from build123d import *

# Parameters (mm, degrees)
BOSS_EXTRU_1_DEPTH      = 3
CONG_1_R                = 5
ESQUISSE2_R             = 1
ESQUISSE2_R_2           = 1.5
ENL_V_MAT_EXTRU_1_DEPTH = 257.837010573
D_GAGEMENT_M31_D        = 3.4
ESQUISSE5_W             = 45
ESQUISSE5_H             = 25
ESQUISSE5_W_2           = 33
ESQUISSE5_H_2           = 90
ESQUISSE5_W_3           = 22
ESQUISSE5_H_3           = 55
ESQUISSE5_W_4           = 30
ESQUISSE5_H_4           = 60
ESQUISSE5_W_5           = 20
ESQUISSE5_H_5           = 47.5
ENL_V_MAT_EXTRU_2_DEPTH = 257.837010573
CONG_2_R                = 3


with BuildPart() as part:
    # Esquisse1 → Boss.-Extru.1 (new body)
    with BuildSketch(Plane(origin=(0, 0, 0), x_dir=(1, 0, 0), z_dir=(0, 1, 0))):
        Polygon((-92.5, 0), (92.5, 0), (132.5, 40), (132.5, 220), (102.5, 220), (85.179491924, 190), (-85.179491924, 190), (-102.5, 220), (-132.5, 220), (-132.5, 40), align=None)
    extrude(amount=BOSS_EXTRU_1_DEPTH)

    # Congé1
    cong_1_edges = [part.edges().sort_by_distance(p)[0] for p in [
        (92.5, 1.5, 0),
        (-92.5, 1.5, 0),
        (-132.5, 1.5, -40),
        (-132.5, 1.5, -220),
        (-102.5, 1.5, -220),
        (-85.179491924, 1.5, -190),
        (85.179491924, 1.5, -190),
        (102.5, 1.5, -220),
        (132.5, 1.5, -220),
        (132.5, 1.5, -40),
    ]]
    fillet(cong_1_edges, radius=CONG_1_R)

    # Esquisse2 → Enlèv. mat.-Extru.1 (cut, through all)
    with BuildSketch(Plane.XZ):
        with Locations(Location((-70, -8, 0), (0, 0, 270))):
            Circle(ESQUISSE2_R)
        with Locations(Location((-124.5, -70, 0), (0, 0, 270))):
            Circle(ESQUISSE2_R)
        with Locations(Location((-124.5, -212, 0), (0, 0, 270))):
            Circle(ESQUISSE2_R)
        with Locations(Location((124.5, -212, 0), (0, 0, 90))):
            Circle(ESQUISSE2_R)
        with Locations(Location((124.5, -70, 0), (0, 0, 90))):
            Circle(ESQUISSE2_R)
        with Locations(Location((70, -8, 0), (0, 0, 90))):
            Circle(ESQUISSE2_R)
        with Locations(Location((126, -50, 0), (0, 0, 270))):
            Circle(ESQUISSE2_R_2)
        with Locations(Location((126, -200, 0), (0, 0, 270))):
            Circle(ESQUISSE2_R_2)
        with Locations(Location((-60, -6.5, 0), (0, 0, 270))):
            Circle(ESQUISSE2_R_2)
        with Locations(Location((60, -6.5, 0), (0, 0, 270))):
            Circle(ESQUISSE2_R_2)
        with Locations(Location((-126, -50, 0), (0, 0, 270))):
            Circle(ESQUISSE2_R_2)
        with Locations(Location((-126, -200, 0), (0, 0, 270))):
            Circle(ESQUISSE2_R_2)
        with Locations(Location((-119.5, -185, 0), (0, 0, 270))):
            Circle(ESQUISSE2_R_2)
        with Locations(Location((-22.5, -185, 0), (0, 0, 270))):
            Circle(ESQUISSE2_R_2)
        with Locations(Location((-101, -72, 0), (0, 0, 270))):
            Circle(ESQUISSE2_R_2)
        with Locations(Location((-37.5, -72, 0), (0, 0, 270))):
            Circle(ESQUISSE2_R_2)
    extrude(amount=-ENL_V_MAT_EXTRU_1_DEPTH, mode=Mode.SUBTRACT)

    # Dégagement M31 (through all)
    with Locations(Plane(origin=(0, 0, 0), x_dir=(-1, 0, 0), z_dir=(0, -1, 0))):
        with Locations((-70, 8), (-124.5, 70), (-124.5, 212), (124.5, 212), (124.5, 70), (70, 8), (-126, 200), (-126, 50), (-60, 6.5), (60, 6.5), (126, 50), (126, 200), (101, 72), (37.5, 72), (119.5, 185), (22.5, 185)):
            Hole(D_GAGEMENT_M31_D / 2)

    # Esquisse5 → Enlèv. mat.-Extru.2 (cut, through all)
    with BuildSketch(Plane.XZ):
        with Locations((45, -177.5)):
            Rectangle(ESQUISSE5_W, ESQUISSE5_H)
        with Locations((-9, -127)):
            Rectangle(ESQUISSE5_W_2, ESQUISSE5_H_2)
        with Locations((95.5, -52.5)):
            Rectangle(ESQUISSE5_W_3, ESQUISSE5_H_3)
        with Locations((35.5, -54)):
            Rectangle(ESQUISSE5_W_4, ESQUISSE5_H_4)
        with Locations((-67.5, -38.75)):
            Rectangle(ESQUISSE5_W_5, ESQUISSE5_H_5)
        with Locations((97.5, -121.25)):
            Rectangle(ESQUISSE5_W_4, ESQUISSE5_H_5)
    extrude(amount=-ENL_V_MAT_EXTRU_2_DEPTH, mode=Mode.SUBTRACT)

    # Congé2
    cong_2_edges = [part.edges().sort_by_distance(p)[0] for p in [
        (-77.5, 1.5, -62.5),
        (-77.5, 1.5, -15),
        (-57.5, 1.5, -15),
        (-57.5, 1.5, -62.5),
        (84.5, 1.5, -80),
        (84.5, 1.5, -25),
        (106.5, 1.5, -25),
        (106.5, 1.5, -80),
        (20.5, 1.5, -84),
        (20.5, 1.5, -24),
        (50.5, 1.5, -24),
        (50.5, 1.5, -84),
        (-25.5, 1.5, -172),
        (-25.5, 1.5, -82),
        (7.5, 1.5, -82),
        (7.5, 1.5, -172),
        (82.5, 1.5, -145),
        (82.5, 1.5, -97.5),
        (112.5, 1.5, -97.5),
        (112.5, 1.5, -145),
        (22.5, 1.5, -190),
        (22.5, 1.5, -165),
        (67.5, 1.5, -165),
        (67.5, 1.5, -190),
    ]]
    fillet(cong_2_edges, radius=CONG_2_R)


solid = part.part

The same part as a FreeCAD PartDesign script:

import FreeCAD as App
import Part
import Sketcher

V = App.Vector
Q = App.Units.Quantity


def edges_at(feature, points):
    """Names of the edges that pass closest to the given points."""
    edges = feature.Shape.Edges
    near = lambda p: min(range(len(edges)), key=lambda i: edges[i].distToShape(Part.Vertex(*p))[0])
    return sorted({f"Edge{near(p) + 1}" for p in points})


def add_polygon(sketch, points):
    """Adds a closed chain of lines whose ends are joined by coincident constraints."""
    first, n = sketch.GeometryCount, len(points)
    for a, b in zip(points, points[1:] + points[:1]):
        sketch.addGeometry(Part.LineSegment(App.Vector(*a, 0), App.Vector(*b, 0)), False)
    for i in range(n):
        sketch.addConstraint(Sketcher.Constraint("Coincident", first + i, 2, first + (i + 1) % n, 1))

doc = App.newDocument("Part")
body = doc.addObject("PartDesign::Body", "Body")

sketch1 = body.newObject("Sketcher::SketchObject", "Sketch")
sketch1.AttachmentSupport = (doc.getObject("XZ_Plane"), [""])
sketch1.MapMode = "FlatFace"
add_polygon(sketch1, [(-92.5, 0), (92.5, 0), (132.5, -40), (132.5, -220), (102.5, -220), (85.179492, -190), (-85.179492, -190), (-102.5, -220), (-132.5, -220), (-132.5, -40)])
sketch1.addConstraint([
    Sketcher.Constraint("Horizontal", 0),
    Sketcher.Constraint("Vertical", 2),
    Sketcher.Constraint("Horizontal", 3),
    Sketcher.Constraint("Horizontal", 5),
    Sketcher.Constraint("Horizontal", 7),
    Sketcher.Constraint("Vertical", 8),
    Sketcher.Constraint("Symmetric", 0, 2, 9, 2, -1, 1),
    Sketcher.Constraint("Symmetric", 3, 2, 6, 2, -2),
    Sketcher.Constraint("Symmetric", 1, 2, 8, 2, -2),
    Sketcher.Constraint("Perpendicular", 1, 9),
    Sketcher.Constraint("Equal", 4, 6),
    Sketcher.Constraint("DistanceX", 0, 1, 0, 2, 185.0),
    Sketcher.Constraint("DistanceX", 3, 2, 3, 1, 30.0),
    Sketcher.Constraint("DistanceY", 2, 2, 2, 1, 180.0),
    Sketcher.Constraint("Angle", 4, Q("120 deg")),
    Sketcher.Constraint("DistanceY", 1, 2, -1, 1, 40.0),
    Sketcher.Constraint("DistanceY", 4, 2, -1, 1, 190.0),
])
pad1 = body.newObject("PartDesign::Pad", "Pad")
pad1.Profile = sketch1
pad1.Length = 3
pad1.Reversed = True
doc.recompute()

fillet = body.newObject("PartDesign::Fillet", "Fillet")
fillet.Base = (pad1, edges_at(pad1, [
    (92.5, 1.5, 0),
    (-92.5, 1.5, 0),
    (-132.5, 1.5, -40),
    (-132.5, 1.5, -220),
    (-102.5, 1.5, -220),
    (-85.179, 1.5, -190),
    (85.179, 1.5, -190),
    (102.5, 1.5, -220),
    (132.5, 1.5, -220),
    (132.5, 1.5, -40),
]))
fillet.Radius = 5

sketch2 = body.newObject("Sketcher::SketchObject", "Sketch001")
sketch2.AttachmentSupport = (doc.getObject("XZ_Plane"), [""])
sketch2.MapMode = "FlatFace"
sketch2.addGeometry([
    Part.Circle(V(-70, -8, 0), V(0, 0, 1), 1),
    Part.Circle(V(-124.5, -70, 0), V(0, 0, 1), 1),
    Part.Circle(V(-124.5, -212, 0), V(0, 0, 1), 1),
    Part.Circle(V(124.5, -212, 0), V(0, 0, 1), 1),
    Part.Circle(V(124.5, -70, 0), V(0, 0, 1), 1),
    Part.Circle(V(70, -8, 0), V(0, 0, 1), 1),
    Part.Circle(V(126, -50, 0), V(0, 0, 1), 1.5),
    Part.Circle(V(126, -200, 0), V(0, 0, 1), 1.5),
    Part.Circle(V(-60, -6.5, 0), V(0, 0, 1), 1.5),
    Part.Circle(V(60, -6.5, 0), V(0, 0, 1), 1.5),
    Part.Circle(V(-126, -50, 0), V(0, 0, 1), 1.5),
    Part.Circle(V(-126, -200, 0), V(0, 0, 1), 1.5),
    Part.Circle(V(-119.5, -185, 0), V(0, 0, 1), 1.5),
    Part.Circle(V(-22.5, -185, 0), V(0, 0, 1), 1.5),
    Part.Circle(V(-101, -72, 0), V(0, 0, 1), 1.5),
    Part.Circle(V(-37.5, -72, 0), V(0, 0, 1), 1.5),
], False)
sketch2.addConstraint([
    Sketcher.Constraint("Equal", 0, 1),
    Sketcher.Constraint("Equal", 1, 2),
    Sketcher.Constraint("Equal", 2, 3),
    Sketcher.Constraint("Equal", 3, 4),
    Sketcher.Constraint("Equal", 4, 5),
    Sketcher.Constraint("Equal", 6, 7),
    Sketcher.Constraint("Equal", 7, 8),
    Sketcher.Constraint("Equal", 8, 9),
    Sketcher.Constraint("Equal", 9, 10),
    Sketcher.Constraint("Equal", 10, 11),
    Sketcher.Constraint("Equal", 11, 12),
    Sketcher.Constraint("Equal", 12, 13),
    Sketcher.Constraint("Equal", 13, 14),
    Sketcher.Constraint("Equal", 14, 15),
    Sketcher.Constraint("Symmetric", 2, 3, 3, 3, -2),
    Sketcher.Constraint("Symmetric", 1, 3, 4, 3, -2),
    Sketcher.Constraint("Symmetric", 0, 3, 5, 3, -2),
    Sketcher.Constraint("Symmetric", 8, 3, 9, 3, -2),
    Sketcher.Constraint("Symmetric", 6, 3, 10, 3, -2),
    Sketcher.Constraint("Symmetric", 7, 3, 11, 3, -2),
    Sketcher.Constraint("Horizontal", 12, 3, 13, 3),
    Sketcher.Constraint("Horizontal", 14, 3, 15, 3),
    Sketcher.Constraint("Vertical", 1, 3, 2, 3),
    Sketcher.Constraint("Vertical", 6, 3, 7, 3),
    Sketcher.Constraint("Diameter", 0, 2.0),
    Sketcher.Constraint("Diameter", 6, 3.0),
    Sketcher.Constraint("DistanceX", 0, 3, -1, 1, 70.0),
    Sketcher.Constraint("DistanceY", 0, 3, -1, 1, 8.0),
    Sketcher.Constraint("DistanceY", 1, 3, -1, 1, 70.0),
    Sketcher.Constraint("DistanceY", 2, 3, -1, 1, 212.0),
    Sketcher.Constraint("DistanceX", -1, 1, 6, 3, 126.0),
    Sketcher.Constraint("DistanceY", 6, 3, -1, 1, 50.0),
    Sketcher.Constraint("DistanceY", 7, 3, -1, 1, 200.0),
    Sketcher.Constraint("DistanceX", 8, 3, -1, 1, 60.0),
    Sketcher.Constraint("DistanceY", 12, 3, -1, 1, 185.0),
    Sketcher.Constraint("DistanceX", 14, 3, -1, 1, 101.0),
    Sketcher.Constraint("DistanceY", 14, 3, -1, 1, 72.0),
    Sketcher.Constraint("DistanceX", 2, 3, 3, 3, 249.0),
    Sketcher.Constraint("DistanceX", 2, 3, 12, 3, 5.0),
    Sketcher.Constraint("DistanceX", 12, 3, 13, 3, 97.0),
    Sketcher.Constraint("DistanceX", 1, 3, 15, 3, 87.0),
    Sketcher.Constraint("DistanceY", 8, 3, -1, 1, 6.5),
])
pocket1 = body.newObject("PartDesign::Pocket", "Pocket")
pocket1.Profile = sketch2
pocket1.Type = "ThroughAll"

sketch3 = body.newObject("Sketcher::SketchObject", "Sketch002")
sketch3.AttachmentSupport = (doc.getObject("XZ_Plane"), [""])
sketch3.MapMode = "FlatFace"
sketch3.addGeometry([
    Part.Circle(V(70, -8, 0), V(0, 0, 1), 1.7),
    Part.Circle(V(124.5, -70, 0), V(0, 0, 1), 1.7),
    Part.Circle(V(124.5, -212, 0), V(0, 0, 1), 1.7),
    Part.Circle(V(-124.5, -212, 0), V(0, 0, 1), 1.7),
    Part.Circle(V(-124.5, -70, 0), V(0, 0, 1), 1.7),
    Part.Circle(V(-70, -8, 0), V(0, 0, 1), 1.7),
    Part.Circle(V(126, -200, 0), V(0, 0, 1), 1.7),
    Part.Circle(V(126, -50, 0), V(0, 0, 1), 1.7),
    Part.Circle(V(60, -6.5, 0), V(0, 0, 1), 1.7),
    Part.Circle(V(-60, -6.5, 0), V(0, 0, 1), 1.7),
    Part.Circle(V(-126, -50, 0), V(0, 0, 1), 1.7),
    Part.Circle(V(-126, -200, 0), V(0, 0, 1), 1.7),
    Part.Circle(V(-101, -72, 0), V(0, 0, 1), 1.7),
    Part.Circle(V(-37.5, -72, 0), V(0, 0, 1), 1.7),
    Part.Circle(V(-119.5, -185, 0), V(0, 0, 1), 1.7),
    Part.Circle(V(-22.5, -185, 0), V(0, 0, 1), 1.7),
], False)
sketch3.addConstraint([
    Sketcher.Constraint("Equal", 0, 1),
    Sketcher.Constraint("Equal", 1, 2),
    Sketcher.Constraint("Equal", 2, 3),
    Sketcher.Constraint("Equal", 3, 4),
    Sketcher.Constraint("Equal", 4, 5),
    Sketcher.Constraint("Equal", 5, 6),
    Sketcher.Constraint("Equal", 6, 7),
    Sketcher.Constraint("Equal", 7, 8),
    Sketcher.Constraint("Equal", 8, 9),
    Sketcher.Constraint("Equal", 9, 10),
    Sketcher.Constraint("Equal", 10, 11),
    Sketcher.Constraint("Equal", 11, 12),
    Sketcher.Constraint("Equal", 12, 13),
    Sketcher.Constraint("Equal", 13, 14),
    Sketcher.Constraint("Equal", 14, 15),
    Sketcher.Constraint("Symmetric", 2, 3, 3, 3, -2),
    Sketcher.Constraint("Symmetric", 1, 3, 4, 3, -2),
    Sketcher.Constraint("Symmetric", 0, 3, 5, 3, -2),
    Sketcher.Constraint("Symmetric", 8, 3, 9, 3, -2),
    Sketcher.Constraint("Symmetric", 7, 3, 10, 3, -2),
    Sketcher.Constraint("Symmetric", 6, 3, 11, 3, -2),
    Sketcher.Constraint("Horizontal", 12, 3, 13, 3),
    Sketcher.Constraint("Horizontal", 14, 3, 15, 3),
    Sketcher.Constraint("Vertical", 1, 3, 2, 3),
    Sketcher.Constraint("Vertical", 6, 3, 7, 3),
    Sketcher.Constraint("Diameter", 0, 3.4),
    Sketcher.Constraint("DistanceX", -1, 1, 0, 3, 70.0),
    Sketcher.Constraint("DistanceY", 0, 3, -1, 1, 8.0),
    Sketcher.Constraint("DistanceY", 1, 3, -1, 1, 70.0),
    Sketcher.Constraint("DistanceY", 2, 3, -1, 1, 212.0),
    Sketcher.Constraint("DistanceX", -1, 1, 6, 3, 126.0),
    Sketcher.Constraint("DistanceY", 6, 3, -1, 1, 200.0),
    Sketcher.Constraint("DistanceY", 7, 3, -1, 1, 50.0),
    Sketcher.Constraint("DistanceX", -1, 1, 8, 3, 60.0),
    Sketcher.Constraint("DistanceX", 12, 3, -1, 1, 101.0),
    Sketcher.Constraint("DistanceY", 12, 3, -1, 1, 72.0),
    Sketcher.Constraint("DistanceY", 14, 3, -1, 1, 185.0),
    Sketcher.Constraint("DistanceX", 3, 3, 2, 3, 249.0),
    Sketcher.Constraint("DistanceX", 4, 3, 13, 3, 87.0),
    Sketcher.Constraint("DistanceX", 3, 3, 14, 3, 5.0),
    Sketcher.Constraint("DistanceX", 14, 3, 15, 3, 97.0),
    Sketcher.Constraint("DistanceY", 8, 3, -1, 1, 6.5),
])
doc.recompute()
hole = body.newObject("PartDesign::Hole", "Hole")
hole.Profile = sketch3
hole.ThreadType = "None"
hole.Diameter = 3.4
hole.DepthType = "ThroughAll"

sketch4 = body.newObject("Sketcher::SketchObject", "Sketch003")
sketch4.AttachmentSupport = (doc.getObject("XZ_Plane"), [""])
sketch4.MapMode = "FlatFace"
add_polygon(sketch4, [(22.5, -165), (22.5, -190), (67.5, -190), (67.5, -165)])
add_polygon(sketch4, [(-25.5, -82), (-25.5, -172), (7.5, -172), (7.5, -82)])
add_polygon(sketch4, [(84.5, -25), (84.5, -80), (106.5, -80), (106.5, -25)])
add_polygon(sketch4, [(20.5, -24), (20.5, -84), (50.5, -84), (50.5, -24)])
add_polygon(sketch4, [(-77.5, -15), (-77.5, -62.5), (-57.5, -62.5), (-57.5, -15)])
add_polygon(sketch4, [(82.5, -97.5), (82.5, -145), (112.5, -145), (112.5, -97.5)])
sketch4.addConstraint([
    Sketcher.Constraint("Vertical", 0),
    Sketcher.Constraint("Horizontal", 1),
    Sketcher.Constraint("Vertical", 2),
    Sketcher.Constraint("Horizontal", 3),
    Sketcher.Constraint("Vertical", 4),
    Sketcher.Constraint("Horizontal", 5),
    Sketcher.Constraint("Vertical", 6),
    Sketcher.Constraint("Horizontal", 7),
    Sketcher.Constraint("Vertical", 8),
    Sketcher.Constraint("Horizontal", 9),
    Sketcher.Constraint("Vertical", 10),
    Sketcher.Constraint("Horizontal", 11),
    Sketcher.Constraint("Vertical", 12),
    Sketcher.Constraint("Horizontal", 13),
    Sketcher.Constraint("Vertical", 14),
    Sketcher.Constraint("Horizontal", 15),
    Sketcher.Constraint("Vertical", 16),
    Sketcher.Constraint("Horizontal", 17),
    Sketcher.Constraint("Vertical", 18),
    Sketcher.Constraint("Horizontal", 19),
    Sketcher.Constraint("Vertical", 20),
    Sketcher.Constraint("Horizontal", 21),
    Sketcher.Constraint("Vertical", 22),
    Sketcher.Constraint("Horizontal", 23),
    Sketcher.Constraint("Equal", 15, 21),
    Sketcher.Constraint("Equal", 18, 20),
    Sketcher.Constraint("DistanceX", 1, 1, 1, 2, 45.0),
    Sketcher.Constraint("DistanceX", 5, 1, 5, 2, 33.0),
    Sketcher.Constraint("DistanceX", 9, 1, 9, 2, 22.0),
    Sketcher.Constraint("DistanceX", 13, 1, 13, 2, 30.0),
    Sketcher.Constraint("DistanceX", 17, 1, 17, 2, 20.0),
    Sketcher.Constraint("DistanceY", 0, 2, 0, 1, 25.0),
    Sketcher.Constraint("DistanceY", 4, 2, 4, 1, 90.0),
    Sketcher.Constraint("DistanceY", 8, 2, 8, 1, 55.0),
    Sketcher.Constraint("DistanceY", 12, 2, 12, 1, 60.0),
    Sketcher.Constraint("DistanceY", 16, 2, 16, 1, 47.5),
    Sketcher.Constraint("DistanceY", 0, 2, -1, 1, 190.0),
    Sketcher.Constraint("DistanceY", 4, 2, -1, 1, 172.0),
    Sketcher.Constraint("DistanceY", 8, 2, -1, 1, 80.0),
    Sketcher.Constraint("DistanceY", 12, 2, -1, 1, 84.0),
    Sketcher.Constraint("DistanceY", 18, 2, -1, 1, 15.0),
    Sketcher.Constraint("DistanceY", 20, 2, -1, 1, 145.0),
    Sketcher.Constraint("DistanceX", 4, 2, 3, 2, 48.0),
    Sketcher.Constraint("DistanceX", 6, 2, 8, 2, 77.0),
    Sketcher.Constraint("DistanceX", 6, 2, 12, 2, 13.0),
    Sketcher.Constraint("DistanceX", 16, 2, 7, 2, 52.0),
    Sketcher.Constraint("DistanceX", 2, 2, 20, 2, 15.0),
    Sketcher.Constraint("DistanceX", -1, 1, 0, 2, 22.5),
])
pocket2 = body.newObject("PartDesign::Pocket", "Pocket001")
pocket2.Profile = sketch4
pocket2.Type = "ThroughAll"
doc.recompute()

fillet2 = body.newObject("PartDesign::Fillet", "Fillet001")
fillet2.Base = (pocket2, edges_at(pocket2, [
    (-77.5, 1.5, -62.5),
    (-77.5, 1.5, -15),
    (-57.5, 1.5, -15),
    (-57.5, 1.5, -62.5),
    (84.5, 1.5, -80),
    (84.5, 1.5, -25),
    (106.5, 1.5, -25),
    (106.5, 1.5, -80),
    (20.5, 1.5, -84),
    (20.5, 1.5, -24),
    (50.5, 1.5, -24),
    (50.5, 1.5, -84),
    (-25.5, 1.5, -172),
    (-25.5, 1.5, -82),
    (7.5, 1.5, -82),
    (7.5, 1.5, -172),
    (82.5, 1.5, -145),
    (82.5, 1.5, -97.5),
    (112.5, 1.5, -97.5),
    (112.5, 1.5, -145),
    (22.5, 1.5, -190),
    (22.5, 1.5, -165),
    (67.5, 1.5, -165),
    (67.5, 1.5, -190),
]))
fillet2.Radius = 3

doc.recompute()
